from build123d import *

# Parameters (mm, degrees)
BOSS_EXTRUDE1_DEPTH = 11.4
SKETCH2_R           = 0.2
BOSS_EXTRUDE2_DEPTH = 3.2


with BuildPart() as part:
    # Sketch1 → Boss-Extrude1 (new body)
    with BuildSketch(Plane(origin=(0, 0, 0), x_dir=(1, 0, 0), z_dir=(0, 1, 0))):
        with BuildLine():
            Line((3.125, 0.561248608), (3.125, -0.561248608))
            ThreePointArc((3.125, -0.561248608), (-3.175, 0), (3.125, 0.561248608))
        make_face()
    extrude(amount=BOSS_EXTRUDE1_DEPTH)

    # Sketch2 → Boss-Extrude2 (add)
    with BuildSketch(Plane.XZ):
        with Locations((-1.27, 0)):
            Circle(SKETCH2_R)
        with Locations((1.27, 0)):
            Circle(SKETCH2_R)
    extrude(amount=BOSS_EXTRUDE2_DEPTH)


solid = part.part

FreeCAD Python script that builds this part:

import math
import FreeCAD as App
import Part
import Sketcher
from FreeCAD import Vector

doc = App.newDocument("Part")
body = doc.addObject("PartDesign::Body", "Body")

sketch1 = doc.addObject("Sketcher::SketchObject", "Sketch")
body.addObject(sketch1)
sketch1.AttachmentSupport = (doc.XZ_Plane, [""])
sketch1.MapMode = "FlatFace"
sketch1.addGeometry([
    Part.LineSegment(Vector(3.1, 0.6, 0), Vector(3.1, -0.6, 0)),
    Part.ArcOfCircle(Part.Circle(Vector(0, 0, 0), Vector(0, 0, 1), 3.2), math.radians(10), math.radians(350)),
], False)
sketch1.addConstraint([
    Sketcher.Constraint("Coincident", 0, 1, 1, 1),
    Sketcher.Constraint("Coincident", 1, 2, 0, 2),
    Sketcher.Constraint("Vertical", 0),
    Sketcher.Constraint("Coincident", 1, 3, -1, 1),
    Sketcher.Constraint("Radius", 1, 3.175),
    Sketcher.Constraint("DistanceX", -1, 1, 0, 1, 3.125),
])
pad1 = doc.addObject("PartDesign::Pad", "Pad")
body.addObject(pad1)
pad1.Profile = sketch1
pad1.Length = 11.4
pad1.Reversed = True

sketch2 = doc.addObject("Sketcher::SketchObject", "Sketch001")
body.addObject(sketch2)
sketch2.AttachmentSupport = (doc.XZ_Plane, [""])
sketch2.MapMode = "FlatFace"
sketch2.addGeometry([
    Part.Circle(Vector(-1.27, 0, 0), Vector(0, 0, 1), 0.2),
    Part.Circle(Vector(1.27, 0, 0), Vector(0, 0, 1), 0.2),
], False)
sketch2.addConstraint([
    Sketcher.Constraint("Equal", 0, 1),
    Sketcher.Constraint("Symmetric", 0, 3, 1, 3, -1, 1),
    Sketcher.Constraint("PointOnObject", 0, 3, -1),
    Sketcher.Constraint("Diameter", 0, 0.4),
    Sketcher.Constraint("DistanceX", 0, 3, -1, 1, 1.27),
])
pad2 = doc.addObject("PartDesign::Pad", "Pad001")
body.addObject(pad2)
pad2.Profile = sketch2
pad2.Length = 3.2

doc.recompute()
